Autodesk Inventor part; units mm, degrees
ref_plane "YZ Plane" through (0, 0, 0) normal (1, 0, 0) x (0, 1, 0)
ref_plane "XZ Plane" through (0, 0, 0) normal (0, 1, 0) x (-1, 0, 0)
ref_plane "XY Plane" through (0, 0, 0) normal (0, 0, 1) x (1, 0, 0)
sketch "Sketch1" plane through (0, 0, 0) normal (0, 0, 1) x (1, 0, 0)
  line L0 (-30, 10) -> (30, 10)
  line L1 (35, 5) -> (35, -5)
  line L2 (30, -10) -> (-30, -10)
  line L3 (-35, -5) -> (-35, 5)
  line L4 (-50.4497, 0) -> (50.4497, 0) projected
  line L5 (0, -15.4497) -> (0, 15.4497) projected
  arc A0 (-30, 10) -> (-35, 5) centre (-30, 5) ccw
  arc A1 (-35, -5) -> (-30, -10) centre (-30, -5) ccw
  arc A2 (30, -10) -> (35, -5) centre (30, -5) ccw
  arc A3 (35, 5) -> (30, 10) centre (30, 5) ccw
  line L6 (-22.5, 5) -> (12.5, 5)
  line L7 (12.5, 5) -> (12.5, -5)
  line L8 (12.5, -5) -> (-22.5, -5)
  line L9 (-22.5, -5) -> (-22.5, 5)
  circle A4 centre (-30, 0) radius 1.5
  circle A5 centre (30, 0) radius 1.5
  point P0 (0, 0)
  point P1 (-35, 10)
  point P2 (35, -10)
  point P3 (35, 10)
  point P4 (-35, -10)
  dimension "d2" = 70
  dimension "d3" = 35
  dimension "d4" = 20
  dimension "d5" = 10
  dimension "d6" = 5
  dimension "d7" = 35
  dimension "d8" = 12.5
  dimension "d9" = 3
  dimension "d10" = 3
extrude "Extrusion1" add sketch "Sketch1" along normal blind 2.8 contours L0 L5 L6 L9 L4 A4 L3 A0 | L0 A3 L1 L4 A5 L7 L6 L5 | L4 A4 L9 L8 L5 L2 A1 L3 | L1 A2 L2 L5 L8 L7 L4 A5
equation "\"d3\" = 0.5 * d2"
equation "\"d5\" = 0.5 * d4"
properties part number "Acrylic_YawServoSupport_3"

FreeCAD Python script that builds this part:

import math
import FreeCAD as App
import Part
import Sketcher


def add_polygon(sketch, points):
    """Adds a closed chain of lines whose ends are joined by coincident constraints."""
    first, n = sketch.GeometryCount, len(points)
    for a, b in zip(points, points[1:] + points[:1]):
        sketch.addGeometry(Part.LineSegment(App.Vector(*a, 0), App.Vector(*b, 0)), False)
    for i in range(n):
        sketch.addConstraint(Sketcher.Constraint("Coincident", first + i, 2, first + (i + 1) % n, 1))

doc = App.newDocument("Part")
body = doc.addObject("PartDesign::Body", "Body")

# Sketch on XY plane
sketch1 = body.newObject("Sketcher::SketchObject", "Sketch")
sketch1.AttachmentSupport = (doc.getObject("XY_Plane"), [""])
sketch1.MapMode = "FlatFace"
sketch1.addGeometry(Part.ArcOfCircle(Part.Circle(App.Vector(-30, 5, 0), App.Vector(0, 0, 1), 5), math.radians(90), math.radians(180)), False)  # 0
sketch1.addGeometry(Part.LineSegment(App.Vector(-35, 5, 0), App.Vector(-35, -5, 0)), False)  # 1
sketch1.addGeometry(Part.ArcOfCircle(Part.Circle(App.Vector(-30, -5, 0), App.Vector(0, 0, 1), 5), math.radians(180), math.radians(270)), False)  # 2
sketch1.addGeometry(Part.LineSegment(App.Vector(-30, -10, 0), App.Vector(30, -10, 0)), False)  # 3
sketch1.addGeometry(Part.ArcOfCircle(Part.Circle(App.Vector(30, -5, 0), App.Vector(0, 0, 1), 5), math.radians(-90), math.radians(0)), False)  # 4
sketch1.addGeometry(Part.LineSegment(App.Vector(35, -5, 0), App.Vector(35, 5, 0)), False)  # 5
sketch1.addGeometry(Part.ArcOfCircle(Part.Circle(App.Vector(30, 5, 0), App.Vector(0, 0, 1), 5), math.radians(0), math.radians(90)), False)  # 6
sketch1.addGeometry(Part.LineSegment(App.Vector(30, 10, 0), App.Vector(-30, 10, 0)), False)  # 7
add_polygon(sketch1, [(-22.5, 5), (12.5, 5), (12.5, -5), (-22.5, -5)])  # lines 8-11
sketch1.addGeometry(Part.Circle(App.Vector(-30, 0, 0), App.Vector(0, 0, 1), 1.5), False)  # 12
sketch1.addGeometry(Part.Circle(App.Vector(30, 0, 0), App.Vector(0, 0, 1), 1.5), False)  # 13
sketch1.addConstraint([
    Sketcher.Constraint("Tangent", 0, 2, 1, 1),
    Sketcher.Constraint("Tangent", 1, 2, 2, 1),
    Sketcher.Constraint("Tangent", 2, 2, 3, 1),
    Sketcher.Constraint("Tangent", 3, 2, 4, 1),
    Sketcher.Constraint("Tangent", 4, 2, 5, 1),
    Sketcher.Constraint("Tangent", 5, 2, 6, 1),
    Sketcher.Constraint("Tangent", 6, 2, 7, 1),
    Sketcher.Constraint("Tangent", 7, 2, 0, 1),
    Sketcher.Constraint("Vertical", 1),
    Sketcher.Constraint("Horizontal", 3),
    Sketcher.Constraint("Vertical", 5),
    Sketcher.Constraint("Horizontal", 7),
    Sketcher.Constraint("Horizontal", 8),
    Sketcher.Constraint("Vertical", 9),
    Sketcher.Constraint("Horizontal", 10),
    Sketcher.Constraint("Vertical", 11),
    Sketcher.Constraint("Equal", 0, 2),
    Sketcher.Constraint("Equal", 2, 4),
    Sketcher.Constraint("Equal", 4, 6),
    Sketcher.Constraint("Equal", 12, 13),
    Sketcher.Constraint("Symmetric", 0, 3, 4, 3, -1, 1),
    Sketcher.Constraint("Symmetric", 12, 3, 13, 3, -1, 1),
    Sketcher.Constraint("PointOnObject", 12, 3, -1),
    Sketcher.Constraint("Horizontal", 5, 2, 8, 2),
    Sketcher.Constraint("Horizontal", 4, 2, 9, 2),
    Sketcher.Constraint("Vertical", 2, 3, 12, 3),
    Sketcher.Constraint("Diameter", 12, 3.0),
    Sketcher.Constraint("Radius", 0, 5.0),
    Sketcher.Constraint("DistanceX", 8, 1, 8, 2, 35.0),
    Sketcher.Constraint("DistanceY", 1, 2, 1, 1, 10.0),
    Sketcher.Constraint("DistanceX", 0, 2, -1, 1, 35.0),
    Sketcher.Constraint("DistanceX", -1, 1, 8, 2, 12.5),
])
pad1 = body.newObject("PartDesign::Pad", "Pad")
pad1.Profile = sketch1
pad1.Length = 2.8

doc.recompute()
